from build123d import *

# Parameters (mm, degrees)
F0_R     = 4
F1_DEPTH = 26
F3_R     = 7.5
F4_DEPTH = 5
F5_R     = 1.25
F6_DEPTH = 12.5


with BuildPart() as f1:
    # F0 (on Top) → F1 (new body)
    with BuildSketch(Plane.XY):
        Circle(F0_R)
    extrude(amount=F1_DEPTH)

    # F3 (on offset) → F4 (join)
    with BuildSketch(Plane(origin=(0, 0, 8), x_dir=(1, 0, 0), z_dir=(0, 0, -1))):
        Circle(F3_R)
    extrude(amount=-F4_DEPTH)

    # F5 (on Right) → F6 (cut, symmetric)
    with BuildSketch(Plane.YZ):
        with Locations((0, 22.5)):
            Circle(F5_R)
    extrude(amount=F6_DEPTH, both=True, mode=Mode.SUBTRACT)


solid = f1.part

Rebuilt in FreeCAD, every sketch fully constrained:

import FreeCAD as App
import Part
import Sketcher
Q = App.Units.Quantity

doc = App.newDocument("Part")
body = doc.addObject("PartDesign::Body", "Body")

# Sketch on XY plane
sketch1 = body.newObject("Sketcher::SketchObject", "Sketch")
sketch1.AttachmentSupport = (doc.getObject("XY_Plane"), [""])
sketch1.MapMode = "FlatFace"
sketch1.addGeometry(Part.Circle(App.Vector(0, 0, 0), App.Vector(0, 0, 1), 4), False)
sketch1.addConstraint([
    Sketcher.Constraint("Coincident", 0, 3, -1, 1),
    Sketcher.Constraint("Diameter", 0, Q("8 mm")),
])
pad1 = body.newObject("PartDesign::Pad", "Pad")
pad1.Profile = sketch1
pad1.Length = 26

# Sketch on XY plane
sketch2 = body.newObject("Sketcher::SketchObject", "Sketch001")
sketch2.AttachmentSupport = (doc.getObject("XY_Plane"), [""])
sketch2.MapMode = "FlatFace"
sketch2.AttachmentOffset = App.Placement(App.Vector(0, 0, 8), App.Rotation())
sketch2.addGeometry(Part.Circle(App.Vector(0, 0, 0), App.Vector(0, 0, 1), 8), False)
sketch2.addConstraint([
    Sketcher.Constraint("Coincident", 0, 3, -1, 1),
    Sketcher.Constraint("Diameter", 0, Q("15 mm")),
])
pad2 = body.newObject("PartDesign::Pad", "Pad001")
pad2.Profile = sketch2
pad2.Length = 5

# Sketch on YZ plane
sketch3 = body.newObject("Sketcher::SketchObject", "Sketch002")
sketch3.AttachmentSupport = (doc.getObject("YZ_Plane"), [""])
sketch3.MapMode = "FlatFace"
sketch3.addGeometry(Part.Circle(App.Vector(0, 22.5, 0), App.Vector(0, 0, 1), 1.2), False)
sketch3.addConstraint([
    Sketcher.Constraint("PointOnObject", 0, 3, -2),
    Sketcher.Constraint("Diameter", 0, Q("2.5 mm")),
    Sketcher.Constraint("DistanceY", -1, 1, 0, 3, Q("22.5 mm")),
])
pocket1 = body.newObject("PartDesign::Pocket", "Pocket")
pocket1.Profile = sketch3
pocket1.Length = 25
pocket1.Midplane = True

doc.recompute()
